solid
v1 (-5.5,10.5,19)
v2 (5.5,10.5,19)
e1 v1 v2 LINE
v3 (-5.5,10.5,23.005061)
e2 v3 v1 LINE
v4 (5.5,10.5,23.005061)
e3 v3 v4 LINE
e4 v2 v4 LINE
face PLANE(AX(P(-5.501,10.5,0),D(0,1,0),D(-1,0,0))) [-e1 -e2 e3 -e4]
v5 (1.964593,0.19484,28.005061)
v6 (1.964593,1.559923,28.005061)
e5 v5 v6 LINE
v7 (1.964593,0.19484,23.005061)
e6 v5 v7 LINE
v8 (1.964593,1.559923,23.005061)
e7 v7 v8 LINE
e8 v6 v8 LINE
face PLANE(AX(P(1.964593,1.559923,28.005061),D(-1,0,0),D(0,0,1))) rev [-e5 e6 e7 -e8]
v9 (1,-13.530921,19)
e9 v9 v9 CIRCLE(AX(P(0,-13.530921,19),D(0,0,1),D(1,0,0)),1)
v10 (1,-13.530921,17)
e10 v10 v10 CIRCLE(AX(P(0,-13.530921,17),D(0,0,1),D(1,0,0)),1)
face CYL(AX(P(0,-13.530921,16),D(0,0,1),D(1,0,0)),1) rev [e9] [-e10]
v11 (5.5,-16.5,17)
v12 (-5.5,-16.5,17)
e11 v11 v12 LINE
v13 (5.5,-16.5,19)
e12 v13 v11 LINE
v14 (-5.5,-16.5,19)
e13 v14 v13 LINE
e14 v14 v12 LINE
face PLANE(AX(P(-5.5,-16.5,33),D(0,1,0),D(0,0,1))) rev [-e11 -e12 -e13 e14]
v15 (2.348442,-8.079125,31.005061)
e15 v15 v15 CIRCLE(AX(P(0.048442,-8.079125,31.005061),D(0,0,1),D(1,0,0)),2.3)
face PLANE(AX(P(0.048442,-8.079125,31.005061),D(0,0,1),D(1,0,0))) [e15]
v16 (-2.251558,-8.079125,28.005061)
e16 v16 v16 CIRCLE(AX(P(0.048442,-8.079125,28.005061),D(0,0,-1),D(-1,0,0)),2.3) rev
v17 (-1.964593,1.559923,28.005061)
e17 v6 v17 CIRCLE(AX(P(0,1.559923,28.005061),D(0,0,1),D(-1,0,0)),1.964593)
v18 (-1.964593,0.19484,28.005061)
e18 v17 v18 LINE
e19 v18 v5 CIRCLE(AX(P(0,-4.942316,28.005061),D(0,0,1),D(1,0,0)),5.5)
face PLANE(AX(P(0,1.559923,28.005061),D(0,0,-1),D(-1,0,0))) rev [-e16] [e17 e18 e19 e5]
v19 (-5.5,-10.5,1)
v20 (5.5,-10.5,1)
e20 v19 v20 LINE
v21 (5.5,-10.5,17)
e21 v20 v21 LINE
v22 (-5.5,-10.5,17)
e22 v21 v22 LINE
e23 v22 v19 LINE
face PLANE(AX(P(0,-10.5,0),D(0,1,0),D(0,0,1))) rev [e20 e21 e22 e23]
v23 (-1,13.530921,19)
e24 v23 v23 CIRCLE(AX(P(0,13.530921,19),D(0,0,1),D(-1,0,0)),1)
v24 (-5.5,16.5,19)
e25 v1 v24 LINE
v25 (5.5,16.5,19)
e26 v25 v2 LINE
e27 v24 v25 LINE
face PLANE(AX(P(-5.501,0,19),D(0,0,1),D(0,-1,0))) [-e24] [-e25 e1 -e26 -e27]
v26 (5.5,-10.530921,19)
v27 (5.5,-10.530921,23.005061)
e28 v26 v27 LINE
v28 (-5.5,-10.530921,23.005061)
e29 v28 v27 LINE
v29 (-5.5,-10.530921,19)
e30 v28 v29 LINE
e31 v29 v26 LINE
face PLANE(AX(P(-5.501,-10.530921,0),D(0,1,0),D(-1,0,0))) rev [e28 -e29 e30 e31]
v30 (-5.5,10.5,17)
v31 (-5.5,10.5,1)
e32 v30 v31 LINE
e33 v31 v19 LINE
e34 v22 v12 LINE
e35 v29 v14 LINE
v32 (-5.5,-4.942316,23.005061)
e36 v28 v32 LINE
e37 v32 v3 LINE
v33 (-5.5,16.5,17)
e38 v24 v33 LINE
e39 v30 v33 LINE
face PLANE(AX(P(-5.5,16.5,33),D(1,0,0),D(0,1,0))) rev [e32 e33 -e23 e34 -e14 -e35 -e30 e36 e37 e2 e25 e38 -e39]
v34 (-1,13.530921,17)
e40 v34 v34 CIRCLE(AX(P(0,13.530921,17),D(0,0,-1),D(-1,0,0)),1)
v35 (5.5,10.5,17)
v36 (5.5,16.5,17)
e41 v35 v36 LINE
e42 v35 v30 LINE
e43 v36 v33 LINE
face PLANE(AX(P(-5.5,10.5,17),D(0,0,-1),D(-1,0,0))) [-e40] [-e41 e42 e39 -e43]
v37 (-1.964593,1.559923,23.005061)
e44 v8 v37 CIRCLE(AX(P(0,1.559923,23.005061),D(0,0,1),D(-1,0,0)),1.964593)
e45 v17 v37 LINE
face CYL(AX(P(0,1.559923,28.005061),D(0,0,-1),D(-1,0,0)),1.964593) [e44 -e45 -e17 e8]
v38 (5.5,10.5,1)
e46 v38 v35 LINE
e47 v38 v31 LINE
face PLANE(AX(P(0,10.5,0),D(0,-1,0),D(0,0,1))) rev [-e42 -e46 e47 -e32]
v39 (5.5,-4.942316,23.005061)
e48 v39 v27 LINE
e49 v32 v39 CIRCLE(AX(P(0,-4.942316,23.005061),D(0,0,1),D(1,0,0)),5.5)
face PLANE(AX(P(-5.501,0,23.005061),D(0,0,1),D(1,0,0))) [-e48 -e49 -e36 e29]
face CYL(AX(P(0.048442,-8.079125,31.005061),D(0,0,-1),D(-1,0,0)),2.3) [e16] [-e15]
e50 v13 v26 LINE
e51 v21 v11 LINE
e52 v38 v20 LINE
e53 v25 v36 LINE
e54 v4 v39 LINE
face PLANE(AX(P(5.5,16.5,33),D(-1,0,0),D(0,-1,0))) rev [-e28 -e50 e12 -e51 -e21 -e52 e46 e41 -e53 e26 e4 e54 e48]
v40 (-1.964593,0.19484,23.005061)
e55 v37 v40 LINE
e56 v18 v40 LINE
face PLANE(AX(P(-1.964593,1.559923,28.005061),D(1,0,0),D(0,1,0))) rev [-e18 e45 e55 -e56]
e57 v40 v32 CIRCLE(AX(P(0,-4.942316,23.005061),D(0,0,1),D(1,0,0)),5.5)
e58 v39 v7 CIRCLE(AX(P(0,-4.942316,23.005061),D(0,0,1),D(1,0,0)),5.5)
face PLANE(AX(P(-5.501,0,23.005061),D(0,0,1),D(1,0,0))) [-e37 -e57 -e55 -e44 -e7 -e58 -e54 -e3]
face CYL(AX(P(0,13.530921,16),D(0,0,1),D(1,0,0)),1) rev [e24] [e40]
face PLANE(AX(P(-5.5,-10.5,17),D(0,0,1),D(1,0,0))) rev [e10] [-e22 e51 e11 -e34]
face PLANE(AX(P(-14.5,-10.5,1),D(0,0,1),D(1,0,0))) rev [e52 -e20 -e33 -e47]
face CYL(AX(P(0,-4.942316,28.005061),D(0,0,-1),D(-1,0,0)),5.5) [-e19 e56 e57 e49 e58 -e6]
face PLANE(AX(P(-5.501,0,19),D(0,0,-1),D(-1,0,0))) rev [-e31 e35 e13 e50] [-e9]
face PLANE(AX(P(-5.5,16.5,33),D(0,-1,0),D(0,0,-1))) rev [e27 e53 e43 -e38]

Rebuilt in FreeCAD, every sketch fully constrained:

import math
import FreeCAD as App
import Part
import Sketcher
from FreeCAD import Vector

doc = App.newDocument("Part")
params = doc.addObject("Spreadsheet::Sheet", "Params")
for row, (alias, value) in enumerate([
    ("sketch1_width", "11 mm"),
    ("sketch1_height", "33 mm"),
    ("pad1_length", "33 mm"),
    ("sketch2_width", "11 mm"),
    ("sketch2_height", "17 mm"),
    ("pocket1_length", "6 mm"),
    ("sketch3_width", "6 mm"),
    ("sketch3_width2", "33 mm"),
    ("sketch3_height", "14 mm"),
    ("sketch4_radius", "5.5 mm"),
    ("pad2_length", "5 mm"),
    ("sketch5_diameter", "4.6 mm"),
    ("pad3_length", "3 mm"),
    ("sketch6_diameter", "2 mm"),
    ("pocket3_length", "3 mm"),
    ("sketch7_width", "21 mm"),
    ("sketch7_height", "1 mm"),
    ("pocket4_length", "20 mm"),
], start=1):
    params.set(f"A{row}", alias)
    params.set(f"B{row}", "=" + value)
    params.setAlias(f"B{row}", alias)

body = doc.addObject("PartDesign::Body", "Body")

sketch1 = body.newObject("Sketcher::SketchObject", "Sketch")
sketch1.AttachmentSupport = (doc.getObject("XY_Plane"), [""])
sketch1.MapMode = "FlatFace"
sketch1.addGeometry(Part.LineSegment(Vector(-6, 16, 0), Vector(-6, -16, 0)), False)
sketch1.addGeometry(Part.LineSegment(Vector(-6, -16, 0), Vector(6, -16, 0)), False)
sketch1.addGeometry(Part.LineSegment(Vector(6, -16, 0), Vector(6, 16, 0)), False)
sketch1.addGeometry(Part.LineSegment(Vector(6, 16, 0), Vector(-6, 16, 0)), False)
sketch1.addConstraint(Sketcher.Constraint("Coincident", 0, 2, 1, 1))
sketch1.addConstraint(Sketcher.Constraint("Coincident", 1, 2, 2, 1))
sketch1.addConstraint(Sketcher.Constraint("Coincident", 2, 2, 3, 1))
sketch1.addConstraint(Sketcher.Constraint("Coincident", 3, 2, 0, 1))
sketch1.addConstraint(Sketcher.Constraint("Vertical", 0))
sketch1.addConstraint(Sketcher.Constraint("Horizontal", 1))
sketch1.addConstraint(Sketcher.Constraint("Vertical", 2))
sketch1.addConstraint(Sketcher.Constraint("Horizontal", 3))
sketch1.addConstraint(Sketcher.Constraint("Symmetric", 0, 2, 2, 2, -1, 1))
sketch1.addConstraint(Sketcher.Constraint("DistanceX", 1, 1, 1, 2, 11.0))
sketch1.addConstraint(Sketcher.Constraint("DistanceY", 0, 2, 0, 1, 33.0))
sketch1.setExpression("Constraints[9]", "Params.sketch1_width")
sketch1.setExpression("Constraints[10]", "Params.sketch1_height")
pad1 = body.newObject("PartDesign::Pad", "Pad")
pad1.Profile = sketch1
pad1.setExpression("Length", "Params.pad1_length")

sketch2 = body.newObject("Sketcher::SketchObject", "Sketch001")
sketch2.AttachmentSupport = (doc.getObject("XZ_Plane"), [""])
sketch2.MapMode = "FlatFace"
sketch2.AttachmentOffset = App.Placement(Vector(0, 0, 16.5), App.Rotation())
sketch2.addGeometry(Part.LineSegment(Vector(-6, 17, 0), Vector(-6, 0, 0)), False)
sketch2.addGeometry(Part.LineSegment(Vector(-6, 0, 0), Vector(6, 0, 0)), False)
sketch2.addGeometry(Part.LineSegment(Vector(6, 0, 0), Vector(6, 17, 0)), False)
sketch2.addGeometry(Part.LineSegment(Vector(6, 17, 0), Vector(-6, 17, 0)), False)
sketch2.addConstraint(Sketcher.Constraint("Coincident", 0, 2, 1, 1))
sketch2.addConstraint(Sketcher.Constraint("Coincident", 1, 2, 2, 1))
sketch2.addConstraint(Sketcher.Constraint("Coincident", 2, 2, 3, 1))
sketch2.addConstraint(Sketcher.Constraint("Coincident", 3, 2, 0, 1))
sketch2.addConstraint(Sketcher.Constraint("Vertical", 0))
sketch2.addConstraint(Sketcher.Constraint("Horizontal", 1))
sketch2.addConstraint(Sketcher.Constraint("Vertical", 2))
sketch2.addConstraint(Sketcher.Constraint("Horizontal", 3))
sketch2.addConstraint(Sketcher.Constraint("Symmetric", 0, 2, 1, 2, -1, 1))
sketch2.addConstraint(Sketcher.Constraint("DistanceX", 1, 1, 1, 2, 11.0))
sketch2.addConstraint(Sketcher.Constraint("DistanceY", 0, 2, 0, 1, 17.0))
sketch2.setExpression("Constraints[9]", "Params.sketch2_width")
sketch2.setExpression("Constraints[10]", "Params.sketch2_height")
pocket1 = body.newObject("PartDesign::Pocket", "Pocket")
pocket1.Profile = sketch2
pocket1.setExpression("Length", "Params.pocket1_length")
doc.recompute()

mirrored = body.newObject("PartDesign::Mirrored", "Mirrored")
mirrored.Originals = [pocket1]
mirrored.MirrorPlane = (doc.getObject("XZ_Plane"), [""])
body.Tip = mirrored

sketch3 = body.newObject("Sketcher::SketchObject", "Sketch002")
sketch3.AttachmentSupport = (doc.getObject("YZ_Plane"), [""])
sketch3.MapMode = "FlatFace"
sketch3.AttachmentOffset = App.Placement(Vector(0, 0, 5.5), App.Rotation())
sketch3.addGeometry(Part.LineSegment(Vector(-16.5, 19, 0), Vector(-10.5, 19, 0)), False)
sketch3.addGeometry(Part.LineSegment(Vector(-10.5, 19, 0), Vector(-10.5, 23, 0)), False)
sketch3.addGeometry(Part.LineSegment(Vector(-10.5, 23, 0), Vector(10.5, 23, 0)), False)
sketch3.addGeometry(Part.LineSegment(Vector(10.5, 23, 0), Vector(10.5, 19, 0)), False)
sketch3.addGeometry(Part.LineSegment(Vector(10.5, 19, 0), Vector(16.5, 19, 0)), False)
sketch3.addGeometry(Part.LineSegment(Vector(16.5, 19, 0), Vector(16.5, 33, 0)), False)
sketch3.addGeometry(Part.LineSegment(Vector(16.5, 33, 0), Vector(-16.5, 33, 0)), False)
sketch3.addGeometry(Part.LineSegment(Vector(-16.5, 33, 0), Vector(-16.5, 19, 0)), False)
sketch3.addConstraint(Sketcher.Constraint("Coincident", 0, 2, 1, 1))
sketch3.addConstraint(Sketcher.Constraint("Coincident", 1, 2, 2, 1))
sketch3.addConstraint(Sketcher.Constraint("Coincident", 2, 2, 3, 1))
sketch3.addConstraint(Sketcher.Constraint("Coincident", 3, 2, 4, 1))
sketch3.addConstraint(Sketcher.Constraint("Coincident", 4, 2, 5, 1))
sketch3.addConstraint(Sketcher.Constraint("Coincident", 5, 2, 6, 1))
sketch3.addConstraint(Sketcher.Constraint("Coincident", 6, 2, 7, 1))
sketch3.addConstraint(Sketcher.Constraint("Coincident", 7, 2, 0, 1))
sketch3.addConstraint(Sketcher.Constraint("Horizontal", 0))
sketch3.addConstraint(Sketcher.Constraint("Vertical", 1))
sketch3.addConstraint(Sketcher.Constraint("Horizontal", 2))
sketch3.addConstraint(Sketcher.Constraint("Vertical", 3))
sketch3.addConstraint(Sketcher.Constraint("Horizontal", 4))
sketch3.addConstraint(Sketcher.Constraint("Vertical", 5))
sketch3.addConstraint(Sketcher.Constraint("Horizontal", 6))
sketch3.addConstraint(Sketcher.Constraint("Vertical", 7))
sketch3.addConstraint(Sketcher.Constraint("Symmetric", 4, 2, 7, 2, -2))
sketch3.addConstraint(Sketcher.Constraint("DistanceX", 4, 1, 4, 2, 6.0))
sketch3.addConstraint(Sketcher.Constraint("DistanceX", 6, 2, 6, 1, 33.0))
sketch3.addConstraint(Sketcher.Constraint("DistanceY", 5, 1, 5, 2, 14.0))
sketch3.addConstraint(Sketcher.Constraint("DistanceY", -1, 1, 0, 2, 19.0))
sketch3.addConstraint(Sketcher.Constraint("DistanceX", 0, 1, 0, 2, 5.969079))
sketch3.addConstraint(Sketcher.Constraint("DistanceY", 1, 1, 1, 2, 4.005061))
sketch3.setExpression("Constraints[17]", "Params.sketch3_width")
sketch3.setExpression("Constraints[18]", "Params.sketch3_width2")
sketch3.setExpression("Constraints[19]", "Params.sketch3_height")
pocket2 = body.newObject("PartDesign::Pocket", "Pocket001")
pocket2.Profile = sketch3
pocket2.Type = "UpToFirst"

sketch4 = body.newObject("Sketcher::SketchObject", "Sketch003")
sketch4.AttachmentSupport = (doc.getObject("XY_Plane"), [""])
sketch4.MapMode = "FlatFace"
sketch4.AttachmentOffset = App.Placement(Vector(0, 0, 23.005061), App.Rotation())
sketch4.addGeometry(Part.LineSegment(Vector(-2, 1.6, 0), Vector(-2, 0.2, 0)), False)
sketch4.addGeometry(Part.ArcOfCircle(Part.Circle(Vector(0, -4.9, 0), Vector(0, 0, 1), 5.5), math.radians(111), math.radians(429)), False)
sketch4.addGeometry(Part.LineSegment(Vector(2, 0.2, 0), Vector(2, 1.6, 0)), False)
sketch4.addGeometry(Part.ArcOfCircle(Part.Circle(Vector(0, 1.6, 0), Vector(0, 0, 1), 2), math.radians(0), math.radians(180)), False)
sketch4.addConstraint(Sketcher.Constraint("Coincident", 0, 2, 1, 1))
sketch4.addConstraint(Sketcher.Constraint("Coincident", 1, 2, 2, 1))
sketch4.addConstraint(Sketcher.Constraint("Tangent", 2, 2, 3, 1))
sketch4.addConstraint(Sketcher.Constraint("Tangent", 3, 2, 0, 1))
sketch4.addConstraint(Sketcher.Constraint("Vertical", 0))
sketch4.addConstraint(Sketcher.Constraint("Vertical", 2))
sketch4.addConstraint(Sketcher.Constraint("Symmetric", 0, 2, 1, 2, -2))
sketch4.addConstraint(Sketcher.Constraint("Radius", 1, 5.5))
sketch4.addConstraint(Sketcher.Constraint("Radius", 3, 1.964593))
sketch4.addConstraint(Sketcher.Constraint("DistanceY", 0, 2, 0, 1, 1.365082))
sketch4.addConstraint(Sketcher.Constraint("DistanceY", -1, 1, 0, 2, 0.19484))
sketch4.setExpression("Constraints[7]", "Params.sketch4_radius")
pad2 = body.newObject("PartDesign::Pad", "Pad001")
pad2.Profile = sketch4
pad2.setExpression("Length", "Params.pad2_length")

sketch5 = body.newObject("Sketcher::SketchObject", "Sketch004")
sketch5.AttachmentSupport = (doc.getObject("XY_Plane"), [""])
sketch5.MapMode = "FlatFace"
sketch5.AttachmentOffset = App.Placement(Vector(0, 0, 28.005061), App.Rotation())
sketch5.addGeometry(Part.Circle(Vector(0, -8.1, 0), Vector(0, 0, 1), 2.3), False)
sketch5.addConstraint(Sketcher.Constraint("Diameter", 0, 4.6))
sketch5.addConstraint(Sketcher.Constraint("DistanceX", -1, 1, 0, 3, 0.048442))
sketch5.addConstraint(Sketcher.Constraint("DistanceY", 0, 3, -1, 1, 8.079125))
sketch5.setExpression("Constraints[0]", "Params.sketch5_diameter")
pad3 = body.newObject("PartDesign::Pad", "Pad002")
pad3.Profile = sketch5
pad3.setExpression("Length", "Params.pad3_length")

sketch6 = body.newObject("Sketcher::SketchObject", "Sketch005")
sketch6.AttachmentSupport = (doc.getObject("XY_Plane"), [""])
sketch6.MapMode = "FlatFace"
sketch6.AttachmentOffset = App.Placement(Vector(0, 0, 19), App.Rotation())
sketch6.addGeometry(Part.Circle(Vector(0, -13.5, 0), Vector(0, 0, 1), 1), False)
sketch6.addGeometry(Part.Circle(Vector(0, 13.5, 0), Vector(0, 0, 1), 1), False)
sketch6.addConstraint(Sketcher.Constraint("Equal", 0, 1))
sketch6.addConstraint(Sketcher.Constraint("Symmetric", 0, 3, 1, 3, -1, 1))
sketch6.addConstraint(Sketcher.Constraint("PointOnObject", 0, 3, -2))
sketch6.addConstraint(Sketcher.Constraint("Diameter", 0, 2.0))
sketch6.addConstraint(Sketcher.Constraint("DistanceY", 0, 3, -1, 1, 13.530921))
sketch6.setExpression("Constraints[3]", "Params.sketch6_diameter")
pocket3 = body.newObject("PartDesign::Pocket", "Pocket002")
pocket3.Profile = sketch6
pocket3.setExpression("Length", "Params.pocket3_length")

sketch7 = body.newObject("Sketcher::SketchObject", "Sketch006")
sketch7.AttachmentSupport = (doc.getObject("YZ_Plane"), [""])
sketch7.MapMode = "FlatFace"
sketch7.AttachmentOffset = App.Placement(Vector(0, 0, 5.5), App.Rotation())
sketch7.addGeometry(Part.LineSegment(Vector(10.5, 1, 0), Vector(-10.5, 1, 0)), False)
sketch7.addGeometry(Part.LineSegment(Vector(-10.5, 1, 0), Vector(-10.5, 0, 0)), False)
sketch7.addGeometry(Part.LineSegment(Vector(-10.5, 0, 0), Vector(10.5, 0, 0)), False)
sketch7.addGeometry(Part.LineSegment(Vector(10.5, 0, 0), Vector(10.5, 1, 0)), False)
sketch7.addConstraint(Sketcher.Constraint("Coincident", 0, 2, 1, 1))
sketch7.addConstraint(Sketcher.Constraint("Coincident", 1, 2, 2, 1))
sketch7.addConstraint(Sketcher.Constraint("Coincident", 2, 2, 3, 1))
sketch7.addConstraint(Sketcher.Constraint("Coincident", 3, 2, 0, 1))
sketch7.addConstraint(Sketcher.Constraint("Horizontal", 0))
sketch7.addConstraint(Sketcher.Constraint("Vertical", 1))
sketch7.addConstraint(Sketcher.Constraint("Horizontal", 2))
sketch7.addConstraint(Sketcher.Constraint("Vertical", 3))
sketch7.addConstraint(Sketcher.Constraint("Symmetric", 1, 2, 2, 2, -1, 1))
sketch7.addConstraint(Sketcher.Constraint("DistanceX", 0, 2, 0, 1, 21.0))
sketch7.addConstraint(Sketcher.Constraint("DistanceY", 1, 2, 1, 1, 1.0))
sketch7.setExpression("Constraints[9]", "Params.sketch7_width")
sketch7.setExpression("Constraints[10]", "Params.sketch7_height")
pocket4 = body.newObject("PartDesign::Pocket", "Pocket003")
pocket4.Profile = sketch7
pocket4.setExpression("Length", "Params.pocket4_length")

doc.recompute()
